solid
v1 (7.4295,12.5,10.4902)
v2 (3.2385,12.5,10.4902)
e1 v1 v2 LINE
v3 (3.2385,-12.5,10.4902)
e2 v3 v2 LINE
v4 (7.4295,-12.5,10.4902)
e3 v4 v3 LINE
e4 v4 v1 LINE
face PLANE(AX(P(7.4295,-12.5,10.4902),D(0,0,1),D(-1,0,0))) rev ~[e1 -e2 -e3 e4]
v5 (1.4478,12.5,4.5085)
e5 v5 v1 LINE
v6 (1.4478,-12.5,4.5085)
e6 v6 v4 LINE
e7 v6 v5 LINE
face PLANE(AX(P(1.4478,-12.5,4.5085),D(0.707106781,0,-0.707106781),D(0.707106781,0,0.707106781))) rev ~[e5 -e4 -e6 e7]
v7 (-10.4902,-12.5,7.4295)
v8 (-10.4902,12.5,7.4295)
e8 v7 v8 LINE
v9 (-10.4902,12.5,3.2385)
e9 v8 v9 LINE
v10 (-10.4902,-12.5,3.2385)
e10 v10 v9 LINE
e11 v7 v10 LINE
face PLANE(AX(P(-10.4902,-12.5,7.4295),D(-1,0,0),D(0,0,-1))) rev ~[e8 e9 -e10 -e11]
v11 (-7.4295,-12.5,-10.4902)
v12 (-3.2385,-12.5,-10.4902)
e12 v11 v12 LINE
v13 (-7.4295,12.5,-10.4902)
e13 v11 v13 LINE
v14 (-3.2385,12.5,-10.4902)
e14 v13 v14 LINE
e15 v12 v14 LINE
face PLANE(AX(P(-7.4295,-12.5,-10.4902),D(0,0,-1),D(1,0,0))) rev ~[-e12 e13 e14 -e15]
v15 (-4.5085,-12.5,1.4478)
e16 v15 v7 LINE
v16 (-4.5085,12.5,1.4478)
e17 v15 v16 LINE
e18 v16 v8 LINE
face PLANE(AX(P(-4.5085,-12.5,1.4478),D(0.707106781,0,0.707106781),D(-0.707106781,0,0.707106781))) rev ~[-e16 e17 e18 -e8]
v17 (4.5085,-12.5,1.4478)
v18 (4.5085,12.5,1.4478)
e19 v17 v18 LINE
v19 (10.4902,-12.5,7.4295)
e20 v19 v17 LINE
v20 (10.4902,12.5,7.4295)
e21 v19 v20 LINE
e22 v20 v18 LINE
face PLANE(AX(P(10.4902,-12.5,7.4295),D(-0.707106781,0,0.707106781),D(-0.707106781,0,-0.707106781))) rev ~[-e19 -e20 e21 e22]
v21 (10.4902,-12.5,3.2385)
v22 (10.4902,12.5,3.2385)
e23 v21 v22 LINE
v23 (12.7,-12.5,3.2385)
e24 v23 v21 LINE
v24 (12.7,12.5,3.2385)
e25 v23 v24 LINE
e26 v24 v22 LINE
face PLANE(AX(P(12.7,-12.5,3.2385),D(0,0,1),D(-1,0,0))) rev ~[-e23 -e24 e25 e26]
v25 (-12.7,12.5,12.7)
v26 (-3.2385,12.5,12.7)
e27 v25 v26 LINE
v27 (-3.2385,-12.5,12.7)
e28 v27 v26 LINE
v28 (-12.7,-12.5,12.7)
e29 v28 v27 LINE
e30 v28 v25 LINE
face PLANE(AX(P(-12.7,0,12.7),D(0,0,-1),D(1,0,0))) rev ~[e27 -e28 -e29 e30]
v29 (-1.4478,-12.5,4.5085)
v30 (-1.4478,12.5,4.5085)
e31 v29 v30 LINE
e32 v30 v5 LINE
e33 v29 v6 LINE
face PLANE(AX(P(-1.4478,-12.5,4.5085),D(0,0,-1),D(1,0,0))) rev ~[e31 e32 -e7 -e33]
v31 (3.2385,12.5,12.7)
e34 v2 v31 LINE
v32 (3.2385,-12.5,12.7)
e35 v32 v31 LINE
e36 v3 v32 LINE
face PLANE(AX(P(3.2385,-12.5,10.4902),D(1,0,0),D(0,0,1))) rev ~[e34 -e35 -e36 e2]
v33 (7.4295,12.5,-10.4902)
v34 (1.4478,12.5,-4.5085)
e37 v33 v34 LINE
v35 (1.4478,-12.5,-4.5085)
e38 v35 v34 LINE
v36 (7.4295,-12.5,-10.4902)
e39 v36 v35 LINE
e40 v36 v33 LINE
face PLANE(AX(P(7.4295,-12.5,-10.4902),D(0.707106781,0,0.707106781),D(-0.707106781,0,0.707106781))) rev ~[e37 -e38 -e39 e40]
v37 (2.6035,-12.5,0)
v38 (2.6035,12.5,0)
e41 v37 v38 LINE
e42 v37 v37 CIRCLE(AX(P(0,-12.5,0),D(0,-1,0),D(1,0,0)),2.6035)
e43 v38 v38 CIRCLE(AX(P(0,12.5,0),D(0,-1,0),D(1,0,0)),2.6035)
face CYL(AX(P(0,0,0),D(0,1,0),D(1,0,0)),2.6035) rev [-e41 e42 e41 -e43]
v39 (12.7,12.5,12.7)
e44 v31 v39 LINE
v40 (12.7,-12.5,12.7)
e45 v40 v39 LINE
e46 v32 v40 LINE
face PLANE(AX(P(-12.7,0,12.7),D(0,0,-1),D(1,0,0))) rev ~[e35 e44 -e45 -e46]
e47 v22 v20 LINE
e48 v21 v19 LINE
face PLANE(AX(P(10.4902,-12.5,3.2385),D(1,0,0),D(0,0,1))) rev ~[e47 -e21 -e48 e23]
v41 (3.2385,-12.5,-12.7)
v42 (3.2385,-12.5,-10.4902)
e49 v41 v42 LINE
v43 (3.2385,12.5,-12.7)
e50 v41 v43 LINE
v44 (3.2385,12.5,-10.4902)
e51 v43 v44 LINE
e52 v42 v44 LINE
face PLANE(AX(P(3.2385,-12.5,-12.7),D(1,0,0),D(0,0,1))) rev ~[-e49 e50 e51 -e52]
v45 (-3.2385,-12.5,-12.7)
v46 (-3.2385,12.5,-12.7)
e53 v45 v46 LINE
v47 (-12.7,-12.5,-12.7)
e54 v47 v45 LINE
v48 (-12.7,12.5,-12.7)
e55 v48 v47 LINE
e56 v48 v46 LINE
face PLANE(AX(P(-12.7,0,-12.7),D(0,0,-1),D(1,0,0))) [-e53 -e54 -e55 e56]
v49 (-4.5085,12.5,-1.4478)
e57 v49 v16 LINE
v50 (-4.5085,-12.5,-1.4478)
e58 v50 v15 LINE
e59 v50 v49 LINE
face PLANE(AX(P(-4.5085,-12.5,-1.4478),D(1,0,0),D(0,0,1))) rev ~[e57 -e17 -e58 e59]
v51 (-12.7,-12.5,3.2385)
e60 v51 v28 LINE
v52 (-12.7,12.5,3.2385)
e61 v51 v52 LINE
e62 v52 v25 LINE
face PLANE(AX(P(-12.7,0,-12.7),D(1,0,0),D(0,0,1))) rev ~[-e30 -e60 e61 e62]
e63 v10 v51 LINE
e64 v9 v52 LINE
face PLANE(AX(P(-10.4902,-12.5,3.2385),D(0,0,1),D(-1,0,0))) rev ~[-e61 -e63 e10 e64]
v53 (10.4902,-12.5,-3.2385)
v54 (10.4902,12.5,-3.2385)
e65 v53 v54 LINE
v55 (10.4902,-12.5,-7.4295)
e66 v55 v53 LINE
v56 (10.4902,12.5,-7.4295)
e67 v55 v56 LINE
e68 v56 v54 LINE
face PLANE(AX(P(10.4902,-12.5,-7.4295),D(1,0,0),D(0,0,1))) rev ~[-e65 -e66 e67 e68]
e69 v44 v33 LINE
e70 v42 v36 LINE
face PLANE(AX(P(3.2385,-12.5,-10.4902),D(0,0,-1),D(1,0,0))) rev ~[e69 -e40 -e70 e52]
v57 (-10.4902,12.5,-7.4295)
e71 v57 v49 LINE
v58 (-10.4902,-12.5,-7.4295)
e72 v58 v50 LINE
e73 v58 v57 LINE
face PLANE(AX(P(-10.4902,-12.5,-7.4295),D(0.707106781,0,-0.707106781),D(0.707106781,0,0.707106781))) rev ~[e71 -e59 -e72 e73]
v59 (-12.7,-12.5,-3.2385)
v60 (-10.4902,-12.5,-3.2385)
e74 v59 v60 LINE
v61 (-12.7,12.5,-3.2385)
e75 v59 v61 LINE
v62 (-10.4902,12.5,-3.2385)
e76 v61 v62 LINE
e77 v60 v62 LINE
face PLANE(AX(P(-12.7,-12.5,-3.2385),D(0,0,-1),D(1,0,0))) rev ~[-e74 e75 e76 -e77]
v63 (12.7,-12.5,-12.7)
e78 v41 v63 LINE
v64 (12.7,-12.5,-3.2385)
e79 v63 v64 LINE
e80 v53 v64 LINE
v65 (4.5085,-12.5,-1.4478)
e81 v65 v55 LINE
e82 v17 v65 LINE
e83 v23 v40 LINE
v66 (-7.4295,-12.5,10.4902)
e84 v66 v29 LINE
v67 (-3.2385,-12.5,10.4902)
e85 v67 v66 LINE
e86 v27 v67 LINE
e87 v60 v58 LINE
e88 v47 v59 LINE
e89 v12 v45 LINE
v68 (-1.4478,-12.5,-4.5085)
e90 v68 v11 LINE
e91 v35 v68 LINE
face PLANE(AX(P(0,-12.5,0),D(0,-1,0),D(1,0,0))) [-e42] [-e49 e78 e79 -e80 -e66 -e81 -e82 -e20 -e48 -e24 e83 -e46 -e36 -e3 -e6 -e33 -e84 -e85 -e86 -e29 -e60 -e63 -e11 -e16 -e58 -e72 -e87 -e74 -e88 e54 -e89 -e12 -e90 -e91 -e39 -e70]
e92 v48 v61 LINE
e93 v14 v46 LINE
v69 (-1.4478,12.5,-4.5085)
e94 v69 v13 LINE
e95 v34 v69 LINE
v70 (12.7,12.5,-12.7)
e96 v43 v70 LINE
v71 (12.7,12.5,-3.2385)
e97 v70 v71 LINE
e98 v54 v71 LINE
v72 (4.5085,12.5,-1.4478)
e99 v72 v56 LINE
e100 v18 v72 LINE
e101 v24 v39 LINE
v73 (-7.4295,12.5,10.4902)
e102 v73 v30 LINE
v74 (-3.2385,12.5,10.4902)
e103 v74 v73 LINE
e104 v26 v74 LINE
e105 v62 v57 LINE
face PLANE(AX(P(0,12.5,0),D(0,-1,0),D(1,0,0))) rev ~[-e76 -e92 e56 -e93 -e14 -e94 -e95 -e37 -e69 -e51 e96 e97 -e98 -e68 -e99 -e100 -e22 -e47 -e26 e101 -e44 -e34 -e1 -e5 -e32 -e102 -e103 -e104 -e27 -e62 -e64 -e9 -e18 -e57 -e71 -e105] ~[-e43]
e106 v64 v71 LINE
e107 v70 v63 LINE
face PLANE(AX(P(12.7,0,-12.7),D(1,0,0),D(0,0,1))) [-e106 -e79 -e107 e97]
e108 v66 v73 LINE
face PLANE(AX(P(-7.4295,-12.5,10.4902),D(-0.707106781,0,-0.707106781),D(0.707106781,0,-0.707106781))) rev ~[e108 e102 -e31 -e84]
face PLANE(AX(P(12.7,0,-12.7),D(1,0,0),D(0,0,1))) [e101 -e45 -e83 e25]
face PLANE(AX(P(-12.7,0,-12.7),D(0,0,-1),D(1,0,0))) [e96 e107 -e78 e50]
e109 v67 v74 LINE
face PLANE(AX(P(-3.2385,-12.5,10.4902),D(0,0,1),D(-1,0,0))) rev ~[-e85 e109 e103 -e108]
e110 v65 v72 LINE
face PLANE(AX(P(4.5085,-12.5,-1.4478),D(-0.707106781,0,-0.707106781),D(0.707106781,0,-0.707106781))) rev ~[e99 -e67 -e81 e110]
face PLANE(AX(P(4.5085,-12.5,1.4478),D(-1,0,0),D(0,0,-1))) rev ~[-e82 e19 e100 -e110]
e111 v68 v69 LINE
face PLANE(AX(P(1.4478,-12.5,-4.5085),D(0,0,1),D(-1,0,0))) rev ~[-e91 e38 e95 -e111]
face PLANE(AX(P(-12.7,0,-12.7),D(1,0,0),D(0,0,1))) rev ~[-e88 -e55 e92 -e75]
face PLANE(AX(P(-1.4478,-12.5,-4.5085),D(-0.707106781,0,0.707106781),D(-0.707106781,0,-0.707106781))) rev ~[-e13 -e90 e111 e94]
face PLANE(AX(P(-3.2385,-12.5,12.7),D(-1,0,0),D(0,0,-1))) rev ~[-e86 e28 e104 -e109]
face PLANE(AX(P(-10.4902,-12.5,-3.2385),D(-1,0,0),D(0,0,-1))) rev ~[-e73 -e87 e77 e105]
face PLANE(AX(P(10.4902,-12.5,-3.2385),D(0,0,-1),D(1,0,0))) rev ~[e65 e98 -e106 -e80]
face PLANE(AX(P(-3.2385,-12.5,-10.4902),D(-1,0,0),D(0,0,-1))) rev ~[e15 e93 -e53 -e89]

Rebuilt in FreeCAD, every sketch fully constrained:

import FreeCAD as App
import Part
import Sketcher
from FreeCAD import Vector
Q = App.Units.Quantity


def add_polygon(sketch, points):
    """Adds a closed chain of lines whose ends are joined by coincident constraints."""
    first, n = sketch.GeometryCount, len(points)
    for a, b in zip(points, points[1:] + points[:1]):
        sketch.addGeometry(Part.LineSegment(App.Vector(*a, 0), App.Vector(*b, 0)), False)
    for i in range(n):
        sketch.addConstraint(Sketcher.Constraint("Coincident", first + i, 2, first + (i + 1) % n, 1))

doc = App.newDocument("Part")
body = doc.addObject("PartDesign::Body", "Body")

sketch1 = doc.addObject("Sketcher::SketchObject", "Sketch")
body.addObject(sketch1)
sketch1.AttachmentSupport = (doc.XZ_Plane, [""])
sketch1.MapMode = "FlatFace"
add_polygon(sketch1, [(-12.7, 12.7), (-12.7, -12.7), (12.7, -12.7), (12.7, 12.7)])
sketch1.addGeometry(Part.Circle(Vector(0, 0, 0), Vector(0, 0, 1), 2.6), False)
sketch1.addConstraint([
    Sketcher.Constraint("Vertical", 0),
    Sketcher.Constraint("Horizontal", 1),
    Sketcher.Constraint("Vertical", 2),
    Sketcher.Constraint("Horizontal", 3),
    Sketcher.Constraint("Coincident", 4, 3, -1, 1),
    Sketcher.Constraint("Symmetric", 0, 2, 2, 2, -1, 1),
    Sketcher.Constraint("Equal", 3, 0),
    Sketcher.Constraint("DistanceX", 1, 1, 1, 2, Q("1 in")),
    Sketcher.Constraint("Diameter", 4, Q("0.205 in")),
])
pad1 = doc.addObject("PartDesign::Pad", "Pad")
body.addObject(pad1)
pad1.Profile = sketch1
pad1.Length = 25
pad1.Midplane = True

sketch2 = doc.addObject("Sketcher::SketchObject", "Sketch001")
body.addObject(sketch2)
sketch2.AttachmentSupport = (doc.XZ_Plane, [""])
sketch2.MapMode = "FlatFace"
sketch2.AttachmentOffset = App.Placement(Vector(0, 0, 12.5), App.Rotation())
add_polygon(sketch2, [(3.2, 12.7), (-3.2, 12.7), (-3.2, 10.5), (-7.4, 10.5), (-1.4, 4.5), (1.4, 4.5), (7.4, 10.5), (3.2, 10.5)])
add_polygon(sketch2, [(-12.7, 3.2), (-12.7, -3.2), (-10.5, -3.2), (-10.5, -7.4), (-4.5, -1.4), (-4.5, 1.4), (-10.5, 7.4), (-10.5, 3.2)])
add_polygon(sketch2, [(-3.2, -12.7), (3.2, -12.7), (3.2, -10.5), (7.4, -10.5), (1.4, -4.5), (-1.4, -4.5), (-7.4, -10.5), (-3.2, -10.5)])
add_polygon(sketch2, [(12.7, -3.2), (12.7, 3.2), (10.5, 3.2), (10.5, 7.4), (4.5, 1.4), (4.5, -1.4), (10.5, -7.4), (10.5, -3.2)])
sketch2.addConstraint([
    Sketcher.Constraint("Horizontal", 0),
    Sketcher.Constraint("Vertical", 1),
    Sketcher.Constraint("Horizontal", 2),
    Sketcher.Constraint("Horizontal", 4),
    Sketcher.Constraint("Horizontal", 6),
    Sketcher.Constraint("Vertical", 7),
    Sketcher.Constraint("Vertical", 8),
    Sketcher.Constraint("Horizontal", 9),
    Sketcher.Constraint("Vertical", 10),
    Sketcher.Constraint("Vertical", 12),
    Sketcher.Constraint("Vertical", 14),
    Sketcher.Constraint("Horizontal", 15),
    Sketcher.Constraint("Horizontal", 16),
    Sketcher.Constraint("Vertical", 17),
    Sketcher.Constraint("Horizontal", 18),
    Sketcher.Constraint("Horizontal", 20),
    Sketcher.Constraint("Horizontal", 22),
    Sketcher.Constraint("Vertical", 23),
    Sketcher.Constraint("Vertical", 24),
    Sketcher.Constraint("Horizontal", 25),
    Sketcher.Constraint("Vertical", 26),
    Sketcher.Constraint("Vertical", 28),
    Sketcher.Constraint("Vertical", 30),
    Sketcher.Constraint("Horizontal", 31),
    Sketcher.Constraint("Symmetric", 0, 2, 16, 2, -1, 1),
    Sketcher.Constraint("Symmetric", 2, 2, 18, 2, -1, 1),
    Sketcher.Constraint("Symmetric", 3, 2, 19, 2, -1, 1),
    Sketcher.Constraint("Symmetric", 5, 2, 21, 2, -1, 1),
    Sketcher.Constraint("Symmetric", 8, 2, 24, 2, -1, 1),
    Sketcher.Constraint("Symmetric", 10, 2, 26, 2, -1, 1),
    Sketcher.Constraint("Symmetric", 11, 2, 27, 2, -1, 1),
    Sketcher.Constraint("Symmetric", 13, 2, 29, 2, -1, 1),
    Sketcher.Constraint("Symmetric", 2, 2, 5, 2, -2),
    Sketcher.Constraint("Symmetric", 14, 2, 25, 2, -2),
    Sketcher.Constraint("Perpendicular", 3, 5),
    Sketcher.Constraint("Parallel", 5, 11),
    Sketcher.Constraint("Perpendicular", 11, 13),
    Sketcher.Constraint("Perpendicular", 19, 21),
    Sketcher.Constraint("Perpendicular", 27, 29),
    Sketcher.Constraint("Horizontal", 13, 2, 26, 2),
    Sketcher.Constraint("Horizontal", 12, 2, 27, 2),
    Sketcher.Constraint("Horizontal", 9, 2, 30, 2),
    Sketcher.Constraint("Vertical", 7, 2, 16, 2),
    Sketcher.Constraint("Vertical", 1, 2, 22, 2),
    Sketcher.Constraint("Equal", 31, 1),
    Sketcher.Constraint("Equal", 16, 8),
    Sketcher.Constraint("Equal", 22, 10),
    Sketcher.Constraint("Equal", 20, 12),
    Sketcher.Constraint("DistanceY", -1, 1, 0, 2, Q("0.5 in")),
    Sketcher.Constraint("DistanceX", 8, 2, -1, 1, Q("0.5 in")),
    Sketcher.Constraint("DistanceX", 0, 2, 0, 1, Q("0.255 in")),
    Sketcher.Constraint("DistanceX", 2, 2, 2, 1, Q("0.165 in")),
    Sketcher.Constraint("DistanceX", 4, 1, 4, 2, Q("0.114 in")),
    Sketcher.Constraint("DistanceX", 9, 1, 9, 2, Q("0.087 in")),
])
pocket1 = doc.addObject("PartDesign::Pocket", "Pocket")
body.addObject(pocket1)
pocket1.Profile = sketch2
pocket1.Type = "ThroughAll"

doc.recompute()
